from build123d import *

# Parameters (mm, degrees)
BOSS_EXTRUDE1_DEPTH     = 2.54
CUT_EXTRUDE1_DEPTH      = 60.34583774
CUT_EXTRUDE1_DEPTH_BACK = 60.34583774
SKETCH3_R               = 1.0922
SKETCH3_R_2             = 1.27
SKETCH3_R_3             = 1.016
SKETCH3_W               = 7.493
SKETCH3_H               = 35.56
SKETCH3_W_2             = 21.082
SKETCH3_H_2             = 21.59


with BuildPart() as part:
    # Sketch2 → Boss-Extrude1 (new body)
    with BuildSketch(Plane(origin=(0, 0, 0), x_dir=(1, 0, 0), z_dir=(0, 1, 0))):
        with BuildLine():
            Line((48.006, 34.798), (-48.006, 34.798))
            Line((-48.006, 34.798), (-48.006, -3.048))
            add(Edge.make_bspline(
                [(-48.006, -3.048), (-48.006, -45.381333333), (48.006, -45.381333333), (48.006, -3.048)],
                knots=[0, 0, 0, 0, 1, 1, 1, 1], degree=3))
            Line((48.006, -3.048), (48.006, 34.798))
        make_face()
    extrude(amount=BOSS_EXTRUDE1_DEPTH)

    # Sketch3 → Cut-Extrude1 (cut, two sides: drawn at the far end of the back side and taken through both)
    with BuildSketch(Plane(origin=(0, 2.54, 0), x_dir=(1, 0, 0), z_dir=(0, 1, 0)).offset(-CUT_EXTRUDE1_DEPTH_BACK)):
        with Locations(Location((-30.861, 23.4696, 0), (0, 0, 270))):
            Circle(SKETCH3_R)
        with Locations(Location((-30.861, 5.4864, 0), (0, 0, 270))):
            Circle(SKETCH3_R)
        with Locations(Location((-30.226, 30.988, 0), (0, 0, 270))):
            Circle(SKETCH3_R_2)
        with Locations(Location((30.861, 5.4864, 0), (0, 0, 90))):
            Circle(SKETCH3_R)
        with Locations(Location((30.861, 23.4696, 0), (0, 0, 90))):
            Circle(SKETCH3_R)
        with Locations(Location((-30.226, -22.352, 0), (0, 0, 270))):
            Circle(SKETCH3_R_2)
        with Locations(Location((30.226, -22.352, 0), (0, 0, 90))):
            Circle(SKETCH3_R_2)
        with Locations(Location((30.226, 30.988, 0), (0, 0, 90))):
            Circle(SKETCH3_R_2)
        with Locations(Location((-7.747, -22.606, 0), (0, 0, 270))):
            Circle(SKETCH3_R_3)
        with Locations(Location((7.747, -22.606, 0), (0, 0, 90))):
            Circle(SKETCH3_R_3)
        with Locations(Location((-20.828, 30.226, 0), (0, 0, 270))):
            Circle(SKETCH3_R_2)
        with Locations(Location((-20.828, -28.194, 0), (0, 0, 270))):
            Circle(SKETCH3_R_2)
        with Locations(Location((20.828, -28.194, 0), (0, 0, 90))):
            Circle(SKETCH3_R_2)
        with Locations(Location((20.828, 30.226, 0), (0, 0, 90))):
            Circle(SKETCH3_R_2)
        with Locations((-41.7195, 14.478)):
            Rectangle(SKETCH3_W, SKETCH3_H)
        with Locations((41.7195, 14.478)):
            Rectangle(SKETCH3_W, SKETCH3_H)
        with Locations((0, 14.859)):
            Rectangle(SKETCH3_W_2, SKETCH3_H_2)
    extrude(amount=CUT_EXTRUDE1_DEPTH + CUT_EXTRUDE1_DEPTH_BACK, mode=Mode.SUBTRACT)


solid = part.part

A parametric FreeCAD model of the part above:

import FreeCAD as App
import Part
import Sketcher
Q = App.Units.Quantity


def add_polygon(sketch, points):
    """Adds a closed chain of lines whose ends are joined by coincident constraints."""
    first, n = sketch.GeometryCount, len(points)
    for a, b in zip(points, points[1:] + points[:1]):
        sketch.addGeometry(Part.LineSegment(App.Vector(*a, 0), App.Vector(*b, 0)), False)
    for i in range(n):
        sketch.addConstraint(Sketcher.Constraint("Coincident", first + i, 2, first + (i + 1) % n, 1))

doc = App.newDocument("Part")
body = doc.addObject("PartDesign::Body", "Body")

# Sketch on XZ plane
sketch1 = body.newObject("Sketcher::SketchObject", "Sketch")
sketch1.AttachmentSupport = (doc.getObject("XZ_Plane"), [""])
sketch1.MapMode = "FlatFace"
sketch1.addGeometry([
    Part.LineSegment(App.Vector(48.006, -34.798, 0), App.Vector(-48.006, -34.798, 0)),
    Part.LineSegment(App.Vector(-48.006, -34.798, 0), App.Vector(-48.006, 3.048, 0)),
    Part.BSplineCurve([App.Vector(-48.006, 3.048, 0), App.Vector(-48.006, 45.381333, 0), App.Vector(48.006, 45.381333, 0), App.Vector(48.006, 3.048, 0)], [4, 4], [0, 1], False, 3, [1, 1, 1, 1], False),
    Part.LineSegment(App.Vector(48.006, 3.048, 0), App.Vector(48.006, -34.798, 0)),
], False)
sketch1.addConstraint([
    Sketcher.Constraint("Block", 2),
    Sketcher.Constraint("Coincident", 0, 2, 1, 1),
    Sketcher.Constraint("Coincident", 1, 2, 2, 1),
    Sketcher.Constraint("Coincident", 2, 2, 3, 1),
    Sketcher.Constraint("Coincident", 3, 2, 0, 1),
    Sketcher.Constraint("Horizontal", 0),
    Sketcher.Constraint("Vertical", 1),
    Sketcher.Constraint("Vertical", 3),
    Sketcher.Constraint("DistanceY", 1, 1, 1, 2, Q("1.49 in")),
])
pad1 = body.newObject("PartDesign::Pad", "Pad")
pad1.Profile = sketch1
pad1.Length = Q("0.1 in")
pad1.Reversed = True

# Sketch on XZ plane
sketch2 = body.newObject("Sketcher::SketchObject", "Sketch001")
sketch2.AttachmentSupport = (doc.getObject("XZ_Plane"), [""])
sketch2.MapMode = "FlatFace"
sketch2.AttachmentOffset = App.Placement(App.Vector(0, 0, -0.1 * 25.4), App.Rotation())
sketch2.addGeometry(Part.Circle(App.Vector(-30.861, -23.4696, 0), App.Vector(0, 0, 1), 1.0922), False)  # 0
sketch2.addGeometry(Part.Circle(App.Vector(-30.861, -5.4864, 0), App.Vector(0, 0, 1), 1.0922), False)  # 1
sketch2.addGeometry(Part.Circle(App.Vector(-30.226, -30.988, 0), App.Vector(0, 0, 1), 1.27), False)  # 2
sketch2.addGeometry(Part.Circle(App.Vector(30.861, -5.4864, 0), App.Vector(0, 0, 1), 1.0922), False)  # 3
sketch2.addGeometry(Part.Circle(App.Vector(30.861, -23.4696, 0), App.Vector(0, 0, 1), 1.0922), False)  # 4
sketch2.addGeometry(Part.Circle(App.Vector(-30.226, 22.352, 0), App.Vector(0, 0, 1), 1.27), False)  # 5
sketch2.addGeometry(Part.Circle(App.Vector(30.226, 22.352, 0), App.Vector(0, 0, 1), 1.27), False)  # 6
sketch2.addGeometry(Part.Circle(App.Vector(30.226, -30.988, 0), App.Vector(0, 0, 1), 1.27), False)  # 7
sketch2.addGeometry(Part.Circle(App.Vector(-7.747, 22.606, 0), App.Vector(0, 0, 1), 1.016), False)  # 8
sketch2.addGeometry(Part.Circle(App.Vector(7.747, 22.606, 0), App.Vector(0, 0, 1), 1.016), False)  # 9
sketch2.addGeometry(Part.Circle(App.Vector(-20.828, -30.226, 0), App.Vector(0, 0, 1), 1.27), False)  # 10
sketch2.addGeometry(Part.Circle(App.Vector(-20.828, 28.194, 0), App.Vector(0, 0, 1), 1.27), False)  # 11
sketch2.addGeometry(Part.Circle(App.Vector(20.828, 28.194, 0), App.Vector(0, 0, 1), 1.27), False)  # 12
sketch2.addGeometry(Part.Circle(App.Vector(20.828, -30.226, 0), App.Vector(0, 0, 1), 1.27), False)  # 13
add_polygon(sketch2, [(-45.466, -32.258), (-45.466, 3.302), (-37.973, 3.302), (-37.973, -32.258)])  # lines 14-17
add_polygon(sketch2, [(37.973, -32.258), (37.973, 3.302), (45.466, 3.302), (45.466, -32.258)])  # lines 18-21
add_polygon(sketch2, [(-10.541, -25.654), (-10.541, -4.064), (10.541, -4.064), (10.541, -25.654)])  # lines 22-25
sketch2.addConstraint([
    Sketcher.Constraint("Vertical", 14),
    Sketcher.Constraint("Horizontal", 15),
    Sketcher.Constraint("Vertical", 16),
    Sketcher.Constraint("Horizontal", 17),
    Sketcher.Constraint("Vertical", 18),
    Sketcher.Constraint("Horizontal", 19),
    Sketcher.Constraint("Vertical", 20),
    Sketcher.Constraint("Horizontal", 21),
    Sketcher.Constraint("Vertical", 22),
    Sketcher.Constraint("Horizontal", 23),
    Sketcher.Constraint("Vertical", 24),
    Sketcher.Constraint("Horizontal", 25),
    Sketcher.Constraint("Equal", 0, 1),
    Sketcher.Constraint("Equal", 1, 3),
    Sketcher.Constraint("Equal", 3, 4),
    Sketcher.Constraint("Equal", 2, 5),
    Sketcher.Constraint("Equal", 5, 6),
    Sketcher.Constraint("Equal", 6, 7),
    Sketcher.Constraint("Equal", 8, 9),
    Sketcher.Constraint("Equal", 7, 10),
    Sketcher.Constraint("Equal", 10, 11),
    Sketcher.Constraint("Equal", 11, 12),
    Sketcher.Constraint("Equal", 12, 13),
    Sketcher.Constraint("Symmetric", 1, 3, 3, 3, -2),
    Sketcher.Constraint("Symmetric", 0, 3, 4, 3, -2),
    Sketcher.Constraint("Symmetric", 5, 3, 6, 3, -2),
    Sketcher.Constraint("Symmetric", 2, 3, 7, 3, -2),
    Sketcher.Constraint("Symmetric", 8, 3, 9, 3, -2),
    Sketcher.Constraint("Symmetric", 11, 3, 12, 3, -2),
    Sketcher.Constraint("Symmetric", 10, 3, 13, 3, -2),
    Sketcher.Constraint("Symmetric", 15, 2, 18, 2, -2),
    Sketcher.Constraint("Symmetric", 17, 2, 20, 2, -2),
    Sketcher.Constraint("Vertical", 0, 3, 1, 3),
    Sketcher.Constraint("Vertical", 2, 3, 5, 3),
    Sketcher.Constraint("Vertical", 10, 3, 11, 3),
    Sketcher.Constraint("Diameter", 2, Q("0.1 in")),
    Sketcher.Constraint("Diameter", 8, Q("0.08 in")),
    Sketcher.Constraint("Diameter", 0, Q("0.086 in")),
    Sketcher.Constraint("DistanceY", 14, 1, 14, 2, Q("1.4 in")),
    Sketcher.Constraint("DistanceX", 23, 1, 23, 2, Q("0.83 in")),
    Sketcher.Constraint("DistanceY", 22, 1, 22, 2, Q("0.85 in")),
    Sketcher.Constraint("DistanceY", 2, 3, 5, 3, Q("2.1 in")),
    Sketcher.Constraint("DistanceX", 14, 2, 5, 3, Q("0.6 in")),
    Sketcher.Constraint("DistanceX", 1, 3, 22, 2, Q("0.8 in")),
    Sketcher.Constraint("DistanceX", 23, 2, 3, 3, Q("0.8 in")),
    Sketcher.Constraint("DistanceX", 15, 1, 15, 2, Q("0.295 in")),
    Sketcher.Constraint("DistanceX", 2, 3, -1, 1, Q("1.19 in")),
    Sketcher.Constraint("DistanceY", 2, 3, -1, 1, Q("1.22 in")),
    Sketcher.Constraint("DistanceY", -1, 1, 8, 3, Q("0.89 in")),
    Sketcher.Constraint("DistanceX", 10, 3, -1, 1, Q("0.82 in")),
    Sketcher.Constraint("DistanceY", 10, 3, -1, 1, Q("1.19 in")),
    Sketcher.Constraint("DistanceY", -1, 1, 11, 3, Q("1.11 in")),
    Sketcher.Constraint("DistanceY", -1, 1, 14, 2, Q("0.13 in")),
    Sketcher.Constraint("DistanceY", 22, 2, -1, 1, Q("0.16 in")),
    Sketcher.Constraint("DistanceX", 1, 3, 8, 3, Q("0.91 in")),
    Sketcher.Constraint("DistanceY", 0, 3, -1, 1, Q("0.924 in")),
    Sketcher.Constraint("DistanceY", 1, 3, -1, 1, Q("0.216 in")),
])
pocket1 = body.newObject("PartDesign::Pocket", "Pocket")
pocket1.Profile = sketch2
pocket1.Type = "ThroughAll"
pocket1.Midplane = True

doc.recompute()
